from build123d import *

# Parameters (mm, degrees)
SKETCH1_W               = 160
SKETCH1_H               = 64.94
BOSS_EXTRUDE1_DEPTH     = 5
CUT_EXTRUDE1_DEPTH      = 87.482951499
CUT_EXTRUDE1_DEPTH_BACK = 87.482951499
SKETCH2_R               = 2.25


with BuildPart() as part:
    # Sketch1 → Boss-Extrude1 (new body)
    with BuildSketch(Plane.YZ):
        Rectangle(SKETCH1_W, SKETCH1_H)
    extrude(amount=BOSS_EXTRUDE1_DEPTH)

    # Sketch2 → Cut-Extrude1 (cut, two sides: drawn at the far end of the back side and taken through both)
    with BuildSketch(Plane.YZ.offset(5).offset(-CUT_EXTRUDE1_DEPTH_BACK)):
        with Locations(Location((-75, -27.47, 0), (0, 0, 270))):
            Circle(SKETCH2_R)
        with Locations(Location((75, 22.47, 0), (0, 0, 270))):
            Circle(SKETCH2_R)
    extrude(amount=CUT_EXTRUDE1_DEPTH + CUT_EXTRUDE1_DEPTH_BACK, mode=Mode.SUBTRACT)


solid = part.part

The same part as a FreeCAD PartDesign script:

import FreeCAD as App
import Part
import Sketcher
from FreeCAD import Vector

doc = App.newDocument("Part")
body = doc.addObject("PartDesign::Body", "Body")

sketch1 = body.newObject("Sketcher::SketchObject", "Sketch")
sketch1.AttachmentSupport = (doc.getObject("YZ_Plane"), [""])
sketch1.MapMode = "FlatFace"
sketch1.addGeometry(Part.LineSegment(Vector(-80, 32.47, 0), Vector(-80, -32.47, 0)), False)
sketch1.addGeometry(Part.LineSegment(Vector(-80, -32.47, 0), Vector(80, -32.47, 0)), False)
sketch1.addGeometry(Part.LineSegment(Vector(80, -32.47, 0), Vector(80, 32.47, 0)), False)
sketch1.addGeometry(Part.LineSegment(Vector(80, 32.47, 0), Vector(-80, 32.47, 0)), False)
sketch1.addConstraint(Sketcher.Constraint("Coincident", 0, 2, 1, 1))
sketch1.addConstraint(Sketcher.Constraint("Coincident", 1, 2, 2, 1))
sketch1.addConstraint(Sketcher.Constraint("Coincident", 2, 2, 3, 1))
sketch1.addConstraint(Sketcher.Constraint("Coincident", 3, 2, 0, 1))
sketch1.addConstraint(Sketcher.Constraint("Vertical", 0))
sketch1.addConstraint(Sketcher.Constraint("Horizontal", 1))
sketch1.addConstraint(Sketcher.Constraint("Vertical", 2))
sketch1.addConstraint(Sketcher.Constraint("Horizontal", 3))
sketch1.addConstraint(Sketcher.Constraint("Symmetric", 0, 2, 2, 2, -1, 1))
sketch1.addConstraint(Sketcher.Constraint("DistanceX", 1, 1, 1, 2, 160.0))
sketch1.addConstraint(Sketcher.Constraint("DistanceY", 0, 2, 0, 1, 64.94))
pad1 = body.newObject("PartDesign::Pad", "Pad")
pad1.Profile = sketch1
pad1.Length = 5

sketch2 = body.newObject("Sketcher::SketchObject", "Sketch001")
sketch2.AttachmentSupport = (doc.getObject("YZ_Plane"), [""])
sketch2.MapMode = "FlatFace"
sketch2.AttachmentOffset = App.Placement(Vector(0, 0, 5), App.Rotation())
sketch2.addGeometry(Part.Circle(Vector(-75, -27.47, 0), Vector(0, 0, 1), 2.25), False)
sketch2.addGeometry(Part.Circle(Vector(75, 22.47, 0), Vector(0, 0, 1), 2.25), False)
sketch2.addConstraint(Sketcher.Constraint("Equal", 0, 1))
sketch2.addConstraint(Sketcher.Constraint("Diameter", 0, 4.5))
sketch2.addConstraint(Sketcher.Constraint("DistanceX", 0, 3, -1, 1, 75.0))
sketch2.addConstraint(Sketcher.Constraint("DistanceX", -1, 1, 1, 3, 75.0))
sketch2.addConstraint(Sketcher.Constraint("DistanceY", 0, 3, -1, 1, 27.47))
sketch2.addConstraint(Sketcher.Constraint("DistanceY", -1, 1, 1, 3, 22.47))
pocket1 = body.newObject("PartDesign::Pocket", "Pocket")
pocket1.Profile = sketch2
pocket1.Type = "ThroughAll"
pocket1.Midplane = True

doc.recompute()
